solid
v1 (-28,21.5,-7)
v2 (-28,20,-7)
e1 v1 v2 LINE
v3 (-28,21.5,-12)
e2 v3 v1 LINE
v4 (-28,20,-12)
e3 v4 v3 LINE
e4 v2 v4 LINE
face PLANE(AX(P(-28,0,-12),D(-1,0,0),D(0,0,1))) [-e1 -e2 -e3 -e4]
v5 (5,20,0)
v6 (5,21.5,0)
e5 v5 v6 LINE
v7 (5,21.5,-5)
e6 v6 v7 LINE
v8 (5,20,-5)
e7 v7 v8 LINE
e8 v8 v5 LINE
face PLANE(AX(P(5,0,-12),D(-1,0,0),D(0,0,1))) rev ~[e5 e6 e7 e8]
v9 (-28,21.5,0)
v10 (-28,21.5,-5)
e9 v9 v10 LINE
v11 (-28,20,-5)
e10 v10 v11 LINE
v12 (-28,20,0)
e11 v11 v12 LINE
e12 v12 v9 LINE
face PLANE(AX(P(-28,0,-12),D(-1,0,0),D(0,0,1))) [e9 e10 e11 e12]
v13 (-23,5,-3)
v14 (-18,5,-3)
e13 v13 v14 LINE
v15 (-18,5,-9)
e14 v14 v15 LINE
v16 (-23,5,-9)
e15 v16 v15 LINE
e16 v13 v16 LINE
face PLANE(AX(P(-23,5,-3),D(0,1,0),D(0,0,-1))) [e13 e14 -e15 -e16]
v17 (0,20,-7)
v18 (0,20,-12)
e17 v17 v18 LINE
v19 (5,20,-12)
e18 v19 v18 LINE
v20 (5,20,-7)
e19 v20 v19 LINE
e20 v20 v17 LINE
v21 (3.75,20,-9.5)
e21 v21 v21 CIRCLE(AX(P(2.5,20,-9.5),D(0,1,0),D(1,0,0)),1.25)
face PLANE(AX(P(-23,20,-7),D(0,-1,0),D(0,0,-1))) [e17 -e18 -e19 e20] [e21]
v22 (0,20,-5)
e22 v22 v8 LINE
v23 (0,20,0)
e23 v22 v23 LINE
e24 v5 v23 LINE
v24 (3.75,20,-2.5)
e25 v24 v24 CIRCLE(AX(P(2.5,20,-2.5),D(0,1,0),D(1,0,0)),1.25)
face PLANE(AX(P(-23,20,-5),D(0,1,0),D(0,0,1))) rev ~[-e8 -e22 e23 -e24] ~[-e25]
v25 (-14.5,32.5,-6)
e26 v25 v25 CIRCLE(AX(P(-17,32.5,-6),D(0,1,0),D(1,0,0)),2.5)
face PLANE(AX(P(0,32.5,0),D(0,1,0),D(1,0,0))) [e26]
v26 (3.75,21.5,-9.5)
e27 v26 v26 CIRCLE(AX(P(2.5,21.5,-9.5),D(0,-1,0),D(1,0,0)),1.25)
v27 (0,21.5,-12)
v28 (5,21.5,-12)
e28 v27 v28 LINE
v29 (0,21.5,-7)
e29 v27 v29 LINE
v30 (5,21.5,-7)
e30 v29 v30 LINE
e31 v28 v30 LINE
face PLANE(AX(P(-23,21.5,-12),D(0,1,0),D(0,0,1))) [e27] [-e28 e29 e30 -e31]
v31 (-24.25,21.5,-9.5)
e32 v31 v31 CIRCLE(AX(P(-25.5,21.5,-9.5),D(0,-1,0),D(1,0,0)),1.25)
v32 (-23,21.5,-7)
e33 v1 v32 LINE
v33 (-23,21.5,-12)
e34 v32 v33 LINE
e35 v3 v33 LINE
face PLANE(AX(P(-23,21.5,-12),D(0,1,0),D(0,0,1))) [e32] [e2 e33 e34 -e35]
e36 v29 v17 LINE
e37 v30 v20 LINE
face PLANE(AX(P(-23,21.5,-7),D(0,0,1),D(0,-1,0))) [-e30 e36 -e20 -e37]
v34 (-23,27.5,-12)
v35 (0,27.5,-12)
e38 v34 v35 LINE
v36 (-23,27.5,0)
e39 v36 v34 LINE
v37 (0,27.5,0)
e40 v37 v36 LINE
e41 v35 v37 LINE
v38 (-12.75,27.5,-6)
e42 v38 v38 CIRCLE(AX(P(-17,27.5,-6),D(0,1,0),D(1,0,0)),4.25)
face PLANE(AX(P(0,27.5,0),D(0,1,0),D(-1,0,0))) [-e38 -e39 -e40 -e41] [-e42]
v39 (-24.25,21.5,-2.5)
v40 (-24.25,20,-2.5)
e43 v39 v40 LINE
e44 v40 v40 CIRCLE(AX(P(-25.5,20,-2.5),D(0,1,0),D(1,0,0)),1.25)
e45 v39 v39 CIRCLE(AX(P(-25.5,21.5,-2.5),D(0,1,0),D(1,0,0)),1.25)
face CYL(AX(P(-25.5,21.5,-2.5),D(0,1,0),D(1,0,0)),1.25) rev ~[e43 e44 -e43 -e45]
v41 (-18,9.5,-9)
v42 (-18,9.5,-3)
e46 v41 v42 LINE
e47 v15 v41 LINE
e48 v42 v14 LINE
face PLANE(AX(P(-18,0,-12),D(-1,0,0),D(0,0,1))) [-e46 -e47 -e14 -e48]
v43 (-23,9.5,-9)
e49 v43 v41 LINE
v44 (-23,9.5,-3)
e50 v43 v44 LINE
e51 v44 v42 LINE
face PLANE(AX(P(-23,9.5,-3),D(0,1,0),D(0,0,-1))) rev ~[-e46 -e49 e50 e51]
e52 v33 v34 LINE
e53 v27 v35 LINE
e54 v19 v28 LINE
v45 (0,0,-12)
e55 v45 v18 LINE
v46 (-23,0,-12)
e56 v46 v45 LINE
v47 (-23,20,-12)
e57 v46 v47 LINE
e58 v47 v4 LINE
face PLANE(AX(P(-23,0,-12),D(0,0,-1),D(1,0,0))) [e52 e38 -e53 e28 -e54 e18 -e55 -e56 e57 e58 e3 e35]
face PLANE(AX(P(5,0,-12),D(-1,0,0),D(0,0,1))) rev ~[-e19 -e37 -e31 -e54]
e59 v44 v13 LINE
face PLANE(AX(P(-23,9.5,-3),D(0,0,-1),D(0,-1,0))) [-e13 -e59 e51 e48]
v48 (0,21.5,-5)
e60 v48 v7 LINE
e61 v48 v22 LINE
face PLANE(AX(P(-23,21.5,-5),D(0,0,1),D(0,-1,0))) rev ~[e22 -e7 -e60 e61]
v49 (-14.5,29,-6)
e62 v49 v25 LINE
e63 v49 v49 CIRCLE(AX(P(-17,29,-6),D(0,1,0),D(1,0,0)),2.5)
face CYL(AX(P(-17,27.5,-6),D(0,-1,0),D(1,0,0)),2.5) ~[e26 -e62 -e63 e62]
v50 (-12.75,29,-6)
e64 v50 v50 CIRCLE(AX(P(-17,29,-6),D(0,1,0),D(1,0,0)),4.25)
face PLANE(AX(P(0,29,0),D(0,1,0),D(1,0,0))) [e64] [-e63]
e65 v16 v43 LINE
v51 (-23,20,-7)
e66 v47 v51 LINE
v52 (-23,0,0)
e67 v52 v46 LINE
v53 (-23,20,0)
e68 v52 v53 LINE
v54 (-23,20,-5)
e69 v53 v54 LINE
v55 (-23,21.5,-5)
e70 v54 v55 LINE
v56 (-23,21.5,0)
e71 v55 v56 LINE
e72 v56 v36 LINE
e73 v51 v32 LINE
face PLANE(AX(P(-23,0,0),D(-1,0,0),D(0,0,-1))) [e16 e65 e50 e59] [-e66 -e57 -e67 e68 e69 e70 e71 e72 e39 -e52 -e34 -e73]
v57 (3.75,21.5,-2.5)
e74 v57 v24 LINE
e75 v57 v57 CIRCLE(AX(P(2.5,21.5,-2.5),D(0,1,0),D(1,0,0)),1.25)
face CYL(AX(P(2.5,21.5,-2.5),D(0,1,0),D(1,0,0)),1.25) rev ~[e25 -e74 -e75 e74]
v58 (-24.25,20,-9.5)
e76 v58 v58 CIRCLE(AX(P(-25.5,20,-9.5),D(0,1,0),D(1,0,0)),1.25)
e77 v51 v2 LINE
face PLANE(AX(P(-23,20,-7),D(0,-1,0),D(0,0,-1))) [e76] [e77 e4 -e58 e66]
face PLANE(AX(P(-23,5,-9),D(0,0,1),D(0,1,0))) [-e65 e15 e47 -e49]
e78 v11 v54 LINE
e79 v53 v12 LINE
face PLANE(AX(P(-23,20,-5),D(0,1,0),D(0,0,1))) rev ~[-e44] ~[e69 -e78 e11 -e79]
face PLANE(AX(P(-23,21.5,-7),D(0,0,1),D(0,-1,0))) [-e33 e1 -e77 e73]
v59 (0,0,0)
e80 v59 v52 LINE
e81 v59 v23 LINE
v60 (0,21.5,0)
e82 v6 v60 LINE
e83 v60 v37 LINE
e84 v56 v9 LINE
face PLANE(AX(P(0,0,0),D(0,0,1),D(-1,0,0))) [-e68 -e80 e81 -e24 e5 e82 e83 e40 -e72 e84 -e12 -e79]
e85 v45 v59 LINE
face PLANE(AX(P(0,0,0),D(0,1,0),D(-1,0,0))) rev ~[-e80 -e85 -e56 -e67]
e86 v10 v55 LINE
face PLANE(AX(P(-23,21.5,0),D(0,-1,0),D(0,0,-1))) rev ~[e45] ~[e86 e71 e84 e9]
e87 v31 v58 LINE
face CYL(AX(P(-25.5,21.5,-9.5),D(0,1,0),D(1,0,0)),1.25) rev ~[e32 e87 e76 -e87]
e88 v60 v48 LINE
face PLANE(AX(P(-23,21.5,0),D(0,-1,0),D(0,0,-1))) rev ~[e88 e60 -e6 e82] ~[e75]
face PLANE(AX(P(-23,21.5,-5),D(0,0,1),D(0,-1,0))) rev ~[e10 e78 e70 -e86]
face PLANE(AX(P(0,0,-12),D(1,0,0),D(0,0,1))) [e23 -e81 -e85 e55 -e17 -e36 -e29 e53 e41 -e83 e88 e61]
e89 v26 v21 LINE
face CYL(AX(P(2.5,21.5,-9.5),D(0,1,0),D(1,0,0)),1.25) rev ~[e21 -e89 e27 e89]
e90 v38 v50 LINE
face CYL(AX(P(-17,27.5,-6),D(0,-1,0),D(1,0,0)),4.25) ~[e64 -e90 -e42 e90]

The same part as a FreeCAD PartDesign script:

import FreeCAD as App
import Part
import Sketcher
from FreeCAD import Vector


def add_polygon(sketch, points):
    """Adds a closed chain of lines whose ends are joined by coincident constraints."""
    first, n = sketch.GeometryCount, len(points)
    for a, b in zip(points, points[1:] + points[:1]):
        sketch.addGeometry(Part.LineSegment(App.Vector(*a, 0), App.Vector(*b, 0)), False)
    for i in range(n):
        sketch.addConstraint(Sketcher.Constraint("Coincident", first + i, 2, first + (i + 1) % n, 1))

doc = App.newDocument("Part")
body = doc.addObject("PartDesign::Body", "Body")

# Sketch on XZ plane
sketch1 = body.newObject("Sketcher::SketchObject", "Sketch")
sketch1.AttachmentSupport = (doc.getObject("XZ_Plane"), [""])
sketch1.MapMode = "FlatFace"
add_polygon(sketch1, [(-23, 0), (0, 0), (0, -12), (-23, -12)])  # lines 0-3
sketch1.addConstraint([
    Sketcher.Constraint("Horizontal", 0),
    Sketcher.Constraint("Vertical", 1),
    Sketcher.Constraint("Horizontal", 2),
    Sketcher.Constraint("Vertical", 3),
    Sketcher.Constraint("Coincident", 0, 2, -1, 1),
    Sketcher.Constraint("DistanceX", 0, 1, 0, 2, 23.0),
    Sketcher.Constraint("DistanceY", 1, 2, 1, 1, 12.0),
])
pad1 = body.newObject("PartDesign::Pad", "Pad")
pad1.Profile = sketch1
pad1.Length = 27.5
pad1.Reversed = True

# Sketch on XZ plane
sketch2 = body.newObject("Sketcher::SketchObject", "Sketch001")
sketch2.AttachmentSupport = (doc.getObject("XZ_Plane"), [""])
sketch2.MapMode = "FlatFace"
sketch2.AttachmentOffset = App.Placement(Vector(0, 0, -27.5), App.Rotation())
sketch2.addGeometry(Part.Circle(Vector(-17, -6, 0), Vector(0, 0, 1), 2.5), False)
sketch2.addConstraint([
    Sketcher.Constraint("Diameter", 0, 5.0),
    Sketcher.Constraint("DistanceX", 0, 3, -1, 1, 17.0),
    Sketcher.Constraint("DistanceY", 0, 3, -1, 1, 6.0),
])
pad2 = body.newObject("PartDesign::Pad", "Pad001")
pad2.Profile = sketch2
pad2.Length = 5
pad2.Reversed = True

# Sketch on XZ plane
sketch3 = body.newObject("Sketcher::SketchObject", "Sketch002")
sketch3.AttachmentSupport = (doc.getObject("XZ_Plane"), [""])
sketch3.MapMode = "FlatFace"
sketch3.AttachmentOffset = App.Placement(Vector(0, 0, -27.5), App.Rotation())
sketch3.addGeometry([
    Part.Circle(Vector(-17, -6, 0), Vector(0, 0, 1), 4.2),
    Part.Circle(Vector(-17, -6, 0), Vector(0, 0, 1), 2.5),
], False)
sketch3.addConstraint([
    Sketcher.Constraint("Coincident", 1, 3, 0, 3),
    Sketcher.Constraint("Diameter", 0, 8.5),
    Sketcher.Constraint("Diameter", 1, 5.0),
    Sketcher.Constraint("DistanceX", 0, 3, -1, 1, 17.0),
    Sketcher.Constraint("DistanceY", 0, 3, -1, 1, 6.0),
])
pad3 = body.newObject("PartDesign::Pad", "Pad002")
pad3.Profile = sketch3
pad3.Length = 1.5
pad3.Reversed = True

# Sketch on YZ plane
sketch4 = body.newObject("Sketcher::SketchObject", "Sketch003")
sketch4.AttachmentSupport = (doc.getObject("YZ_Plane"), [""])
sketch4.MapMode = "FlatFace"
sketch4.AttachmentOffset = App.Placement(Vector(0, 0, -23), App.Rotation())
add_polygon(sketch4, [(20, -5), (20, 0), (21.5, 0), (21.5, -5)])  # lines 0-3
add_polygon(sketch4, [(21.5, -12), (20, -12), (20, -7), (21.5, -7)])  # lines 4-7
sketch4.addConstraint([
    Sketcher.Constraint("Vertical", 0),
    Sketcher.Constraint("Horizontal", 1),
    Sketcher.Constraint("Vertical", 2),
    Sketcher.Constraint("Horizontal", 3),
    Sketcher.Constraint("Horizontal", 4),
    Sketcher.Constraint("Vertical", 5),
    Sketcher.Constraint("Horizontal", 6),
    Sketcher.Constraint("Vertical", 7),
    Sketcher.Constraint("PointOnObject", 0, 2, -1),
    Sketcher.Constraint("Vertical", 3, 2, 4, 2),
    Sketcher.Constraint("Vertical", 2, 2, 6, 2),
    Sketcher.Constraint("Equal", 2, 5),
    Sketcher.Constraint("DistanceY", 0, 1, 0, 2, 5.0),
    Sketcher.Constraint("DistanceX", 1, 1, 1, 2, 1.5),
    Sketcher.Constraint("DistanceX", -1, 1, 0, 2, 20.0),
    Sketcher.Constraint("DistanceY", 4, 2, -1, 1, 12.0),
])
pad4 = body.newObject("PartDesign::Pad", "Pad003")
pad4.Profile = sketch4
pad4.Type = "TwoLengths"
pad4.Length = 5
pad4.Length2 = 28
pad4.Reversed = True

# Sketch on XZ plane
sketch5 = body.newObject("Sketcher::SketchObject", "Sketch004")
sketch5.AttachmentSupport = (doc.getObject("XZ_Plane"), [""])
sketch5.MapMode = "FlatFace"
sketch5.AttachmentOffset = App.Placement(Vector(0, 0, -21.5), App.Rotation())
sketch5.addGeometry([
    Part.Circle(Vector(-25.5, -9.5, 0), Vector(0, 0, 1), 1.2),
    Part.Circle(Vector(-25.5, -2.5, 0), Vector(0, 0, 1), 1.2),
    Part.Circle(Vector(2.5, -9.5, 0), Vector(0, 0, 1), 1.2),
    Part.Circle(Vector(2.5, -2.5, 0), Vector(0, 0, 1), 1.2),
], False)
sketch5.addConstraint([
    Sketcher.Constraint("Equal", 0, 1),
    Sketcher.Constraint("Equal", 1, 2),
    Sketcher.Constraint("Equal", 2, 3),
    Sketcher.Constraint("Horizontal", 0, 3, 2, 3),
    Sketcher.Constraint("Horizontal", 1, 3, 3, 3),
    Sketcher.Constraint("Vertical", 0, 3, 1, 3),
    Sketcher.Constraint("Vertical", 2, 3, 3, 3),
    Sketcher.Constraint("Diameter", 0, 2.5),
    Sketcher.Constraint("DistanceY", 1, 3, -1, 1, 2.5),
    Sketcher.Constraint("DistanceX", -1, 1, 2, 3, 2.5),
    Sketcher.Constraint("DistanceY", 0, 3, 1, 3, 7.0),
    Sketcher.Constraint("DistanceX", 0, 3, 2, 3, 28.0),
])
pocket1 = body.newObject("PartDesign::Pocket", "Pocket")
pocket1.Profile = sketch5
pocket1.Length = 5
pocket1.Reversed = True

# Sketch on YZ plane
sketch6 = body.newObject("Sketcher::SketchObject", "Sketch005")
sketch6.AttachmentSupport = (doc.getObject("YZ_Plane"), [""])
sketch6.MapMode = "FlatFace"
sketch6.AttachmentOffset = App.Placement(Vector(0, 0, -23), App.Rotation())
add_polygon(sketch6, [(5, -3), (9.5, -3), (9.5, -9), (5, -9)])  # lines 0-3
sketch6.addConstraint([
    Sketcher.Constraint("Horizontal", 0),
    Sketcher.Constraint("Vertical", 1),
    Sketcher.Constraint("Horizontal", 2),
    Sketcher.Constraint("Vertical", 3),
    Sketcher.Constraint("DistanceY", 1, 2, 1, 1, 6.0),
    Sketcher.Constraint("DistanceX", 0, 1, 0, 2, 4.5),
    Sketcher.Constraint("DistanceY", 0, 2, -1, 1, 3.0),
    Sketcher.Constraint("DistanceX", -1, 1, 2, 2, 5.0),
])
pocket2 = body.newObject("PartDesign::Pocket", "Pocket001")
pocket2.Profile = sketch6
pocket2.Length = 5
pocket2.Reversed = True

doc.recompute()
